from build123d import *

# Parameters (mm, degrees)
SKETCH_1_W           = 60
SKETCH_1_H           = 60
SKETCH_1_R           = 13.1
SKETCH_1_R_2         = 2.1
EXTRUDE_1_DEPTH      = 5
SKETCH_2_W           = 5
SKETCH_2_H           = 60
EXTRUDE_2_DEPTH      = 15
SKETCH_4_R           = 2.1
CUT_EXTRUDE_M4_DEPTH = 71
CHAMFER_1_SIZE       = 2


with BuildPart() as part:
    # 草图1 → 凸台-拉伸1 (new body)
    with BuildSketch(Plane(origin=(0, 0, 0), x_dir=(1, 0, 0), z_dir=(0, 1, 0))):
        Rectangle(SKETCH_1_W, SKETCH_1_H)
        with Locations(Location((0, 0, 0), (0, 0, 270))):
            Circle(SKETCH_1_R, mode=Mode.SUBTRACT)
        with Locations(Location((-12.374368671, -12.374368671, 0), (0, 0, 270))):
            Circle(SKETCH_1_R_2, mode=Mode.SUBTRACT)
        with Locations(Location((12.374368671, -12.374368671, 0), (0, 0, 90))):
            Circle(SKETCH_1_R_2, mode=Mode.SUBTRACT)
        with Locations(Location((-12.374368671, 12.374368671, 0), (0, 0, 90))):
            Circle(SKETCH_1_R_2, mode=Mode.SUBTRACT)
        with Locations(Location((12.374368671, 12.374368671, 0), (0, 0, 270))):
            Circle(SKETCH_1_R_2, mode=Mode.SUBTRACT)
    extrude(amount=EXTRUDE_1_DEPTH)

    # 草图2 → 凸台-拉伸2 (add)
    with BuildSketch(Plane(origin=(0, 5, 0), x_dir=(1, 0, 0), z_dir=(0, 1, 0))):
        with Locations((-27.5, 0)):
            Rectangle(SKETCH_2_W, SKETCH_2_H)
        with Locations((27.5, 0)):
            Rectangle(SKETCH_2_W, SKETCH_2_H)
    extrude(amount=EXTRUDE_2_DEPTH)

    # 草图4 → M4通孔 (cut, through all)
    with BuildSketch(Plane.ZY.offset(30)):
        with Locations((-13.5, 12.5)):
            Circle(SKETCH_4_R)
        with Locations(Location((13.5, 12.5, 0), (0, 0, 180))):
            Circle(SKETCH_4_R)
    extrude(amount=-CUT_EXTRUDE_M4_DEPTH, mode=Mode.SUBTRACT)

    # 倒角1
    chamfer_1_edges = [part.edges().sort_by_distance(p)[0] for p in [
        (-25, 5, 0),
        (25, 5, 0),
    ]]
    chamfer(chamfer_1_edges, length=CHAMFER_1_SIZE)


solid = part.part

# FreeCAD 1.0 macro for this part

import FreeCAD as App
import Part
import Sketcher

V = App.Vector
Q = App.Units.Quantity


def edges_at(feature, points):
    """Names of the edges that pass closest to the given points."""
    edges = feature.Shape.Edges
    near = lambda p: min(range(len(edges)), key=lambda i: edges[i].distToShape(Part.Vertex(*p))[0])
    return sorted({f"Edge{near(p) + 1}" for p in points})

doc = App.newDocument("Part")
body = doc.addObject("PartDesign::Body", "Body")

# Sketch on XZ plane
sketch1 = doc.addObject("Sketcher::SketchObject", "Sketch")
body.addObject(sketch1)
sketch1.AttachmentSupport = (doc.XZ_Plane, [""])
sketch1.MapMode = "FlatFace"
sketch1.addGeometry(Part.LineSegment(V(-30, -30, 0), V(-30, 30, 0)), False)
sketch1.addGeometry(Part.LineSegment(V(-30, 30, 0), V(30, 30, 0)), False)
sketch1.addGeometry(Part.LineSegment(V(30, 30, 0), V(30, -30, 0)), False)
sketch1.addGeometry(Part.LineSegment(V(30, -30, 0), V(-30, -30, 0)), False)
sketch1.addGeometry(Part.Circle(V(-12.4, 12.4, 0), V(0, 0, 1), 2.1), False)
sketch1.addGeometry(Part.Circle(V(12.4, 12.4, 0), V(0, 0, 1), 2.1), False)
sketch1.addGeometry(Part.Circle(V(-12.4, -12.4, 0), V(0, 0, 1), 2.1), False)
sketch1.addGeometry(Part.Circle(V(0, 0, 0), V(0, 0, 1), 13.1), False)
sketch1.addGeometry(Part.Circle(V(12.4, -12.4, 0), V(0, 0, 1), 2.1), False)
sketch1.addConstraint(Sketcher.Constraint("Coincident", 0, 2, 1, 1))
sketch1.addConstraint(Sketcher.Constraint("Coincident", 1, 2, 2, 1))
sketch1.addConstraint(Sketcher.Constraint("Coincident", 2, 2, 3, 1))
sketch1.addConstraint(Sketcher.Constraint("Coincident", 3, 2, 0, 1))
sketch1.addConstraint(Sketcher.Constraint("Vertical", 0))
sketch1.addConstraint(Sketcher.Constraint("Horizontal", 1))
sketch1.addConstraint(Sketcher.Constraint("Vertical", 2))
sketch1.addConstraint(Sketcher.Constraint("Horizontal", 3))
sketch1.addConstraint(Sketcher.Constraint("Coincident", 7, 3, -1, 1))
sketch1.addConstraint(Sketcher.Constraint("Equal", 4, 5))
sketch1.addConstraint(Sketcher.Constraint("Equal", 5, 6))
sketch1.addConstraint(Sketcher.Constraint("Equal", 6, 8))
sketch1.addConstraint(Sketcher.Constraint("Symmetric", 5, 3, 6, 3, -1, 1))
sketch1.addConstraint(Sketcher.Constraint("Symmetric", 4, 3, 8, 3, -1, 1))
sketch1.addConstraint(Sketcher.Constraint("Symmetric", 0, 2, 2, 2, -1, 1))
sketch1.addConstraint(Sketcher.Constraint("Symmetric", 4, 3, 5, 3, -2))
sketch1.addConstraint(Sketcher.Constraint("Equal", 3, 0))
sketch1.addConstraint(Sketcher.Constraint("Diameter", 4, Q("4.2 mm")))
sketch1.addConstraint(Sketcher.Constraint("Diameter", 7, Q("26.2 mm")))
sketch1.addConstraint(Sketcher.Constraint("DistanceX", 1, 1, 1, 2, Q("60 mm")))
sketch1.addConstraint(Sketcher.Constraint("DistanceX", 4, 3, -1, 1, Q("12.374369 mm")))
sketch1.addConstraint(Sketcher.Constraint("DistanceY", -1, 1, 4, 3, Q("12.374369 mm")))
pad1 = doc.addObject("PartDesign::Pad", "Pad")
body.addObject(pad1)
pad1.Profile = sketch1
pad1.Length = 5
pad1.Reversed = True

# Sketch on XZ plane
sketch2 = doc.addObject("Sketcher::SketchObject", "Sketch001")
body.addObject(sketch2)
sketch2.AttachmentSupport = (doc.XZ_Plane, [""])
sketch2.MapMode = "FlatFace"
sketch2.AttachmentOffset = App.Placement(V(0, 0, -5), App.Rotation())
sketch2.addGeometry(Part.LineSegment(V(-30, -30, 0), V(-30, 30, 0)), False)
sketch2.addGeometry(Part.LineSegment(V(-30, 30, 0), V(-25, 30, 0)), False)
sketch2.addGeometry(Part.LineSegment(V(-25, 30, 0), V(-25, -30, 0)), False)
sketch2.addGeometry(Part.LineSegment(V(-25, -30, 0), V(-30, -30, 0)), False)
sketch2.addGeometry(Part.LineSegment(V(25, -30, 0), V(25, 30, 0)), False)
sketch2.addGeometry(Part.LineSegment(V(25, 30, 0), V(30, 30, 0)), False)
sketch2.addGeometry(Part.LineSegment(V(30, 30, 0), V(30, -30, 0)), False)
sketch2.addGeometry(Part.LineSegment(V(30, -30, 0), V(25, -30, 0)), False)
sketch2.addConstraint(Sketcher.Constraint("Coincident", 0, 2, 1, 1))
sketch2.addConstraint(Sketcher.Constraint("Coincident", 1, 2, 2, 1))
sketch2.addConstraint(Sketcher.Constraint("Coincident", 2, 2, 3, 1))
sketch2.addConstraint(Sketcher.Constraint("Coincident", 3, 2, 0, 1))
sketch2.addConstraint(Sketcher.Constraint("Coincident", 4, 2, 5, 1))
sketch2.addConstraint(Sketcher.Constraint("Coincident", 5, 2, 6, 1))
sketch2.addConstraint(Sketcher.Constraint("Coincident", 6, 2, 7, 1))
sketch2.addConstraint(Sketcher.Constraint("Coincident", 7, 2, 4, 1))
sketch2.addConstraint(Sketcher.Constraint("Vertical", 0))
sketch2.addConstraint(Sketcher.Constraint("Horizontal", 1))
sketch2.addConstraint(Sketcher.Constraint("Vertical", 2))
sketch2.addConstraint(Sketcher.Constraint("Horizontal", 3))
sketch2.addConstraint(Sketcher.Constraint("Vertical", 4))
sketch2.addConstraint(Sketcher.Constraint("Horizontal", 5))
sketch2.addConstraint(Sketcher.Constraint("Vertical", 6))
sketch2.addConstraint(Sketcher.Constraint("Horizontal", 7))
sketch2.addConstraint(Sketcher.Constraint("Symmetric", 2, 2, 4, 2, -1, 1))
sketch2.addConstraint(Sketcher.Constraint("Symmetric", 0, 2, 6, 2, -1, 1))
sketch2.addConstraint(Sketcher.Constraint("Horizontal", 1, 2, 4, 2))
sketch2.addConstraint(Sketcher.Constraint("DistanceX", 1, 1, 1, 2, Q("5 mm")))
sketch2.addConstraint(Sketcher.Constraint("DistanceY", 0, 1, 0, 2, Q("60 mm")))
sketch2.addConstraint(Sketcher.Constraint("DistanceX", 0, 2, -1, 1, Q("30 mm")))
pad2 = doc.addObject("PartDesign::Pad", "Pad001")
body.addObject(pad2)
pad2.Profile = sketch2
pad2.Length = 15
pad2.Reversed = True

# Sketch on YZ plane
sketch3 = doc.addObject("Sketcher::SketchObject", "Sketch002")
body.addObject(sketch3)
sketch3.AttachmentSupport = (doc.YZ_Plane, [""])
sketch3.MapMode = "FlatFace"
sketch3.AttachmentOffset = App.Placement(V(0, 0, -30), App.Rotation())
sketch3.addGeometry(Part.Circle(V(12.5, -13.5, 0), V(0, 0, 1), 2.1), False)
sketch3.addGeometry(Part.Circle(V(12.5, 13.5, 0), V(0, 0, 1), 2.1), False)
sketch3.addConstraint(Sketcher.Constraint("Equal", 0, 1))
sketch3.addConstraint(Sketcher.Constraint("Symmetric", 0, 3, 1, 3, -1))
sketch3.addConstraint(Sketcher.Constraint("Diameter", 0, Q("4.2 mm")))
sketch3.addConstraint(Sketcher.Constraint("DistanceY", 0, 3, 1, 3, Q("27 mm")))
sketch3.addConstraint(Sketcher.Constraint("DistanceX", -1, 1, 0, 3, Q("12.5 mm")))
pocket1 = doc.addObject("PartDesign::Pocket", "Pocket")
body.addObject(pocket1)
pocket1.Profile = sketch3
pocket1.Type = "ThroughAll"
pocket1.Reversed = True
doc.recompute()

chamfer = doc.addObject("PartDesign::Chamfer", "Chamfer")
body.addObject(chamfer)
chamfer.Base = (pocket1, edges_at(pocket1, [(-25, 5, 0), (25, 5, 0)]))
chamfer.Size = 2

doc.recompute()
